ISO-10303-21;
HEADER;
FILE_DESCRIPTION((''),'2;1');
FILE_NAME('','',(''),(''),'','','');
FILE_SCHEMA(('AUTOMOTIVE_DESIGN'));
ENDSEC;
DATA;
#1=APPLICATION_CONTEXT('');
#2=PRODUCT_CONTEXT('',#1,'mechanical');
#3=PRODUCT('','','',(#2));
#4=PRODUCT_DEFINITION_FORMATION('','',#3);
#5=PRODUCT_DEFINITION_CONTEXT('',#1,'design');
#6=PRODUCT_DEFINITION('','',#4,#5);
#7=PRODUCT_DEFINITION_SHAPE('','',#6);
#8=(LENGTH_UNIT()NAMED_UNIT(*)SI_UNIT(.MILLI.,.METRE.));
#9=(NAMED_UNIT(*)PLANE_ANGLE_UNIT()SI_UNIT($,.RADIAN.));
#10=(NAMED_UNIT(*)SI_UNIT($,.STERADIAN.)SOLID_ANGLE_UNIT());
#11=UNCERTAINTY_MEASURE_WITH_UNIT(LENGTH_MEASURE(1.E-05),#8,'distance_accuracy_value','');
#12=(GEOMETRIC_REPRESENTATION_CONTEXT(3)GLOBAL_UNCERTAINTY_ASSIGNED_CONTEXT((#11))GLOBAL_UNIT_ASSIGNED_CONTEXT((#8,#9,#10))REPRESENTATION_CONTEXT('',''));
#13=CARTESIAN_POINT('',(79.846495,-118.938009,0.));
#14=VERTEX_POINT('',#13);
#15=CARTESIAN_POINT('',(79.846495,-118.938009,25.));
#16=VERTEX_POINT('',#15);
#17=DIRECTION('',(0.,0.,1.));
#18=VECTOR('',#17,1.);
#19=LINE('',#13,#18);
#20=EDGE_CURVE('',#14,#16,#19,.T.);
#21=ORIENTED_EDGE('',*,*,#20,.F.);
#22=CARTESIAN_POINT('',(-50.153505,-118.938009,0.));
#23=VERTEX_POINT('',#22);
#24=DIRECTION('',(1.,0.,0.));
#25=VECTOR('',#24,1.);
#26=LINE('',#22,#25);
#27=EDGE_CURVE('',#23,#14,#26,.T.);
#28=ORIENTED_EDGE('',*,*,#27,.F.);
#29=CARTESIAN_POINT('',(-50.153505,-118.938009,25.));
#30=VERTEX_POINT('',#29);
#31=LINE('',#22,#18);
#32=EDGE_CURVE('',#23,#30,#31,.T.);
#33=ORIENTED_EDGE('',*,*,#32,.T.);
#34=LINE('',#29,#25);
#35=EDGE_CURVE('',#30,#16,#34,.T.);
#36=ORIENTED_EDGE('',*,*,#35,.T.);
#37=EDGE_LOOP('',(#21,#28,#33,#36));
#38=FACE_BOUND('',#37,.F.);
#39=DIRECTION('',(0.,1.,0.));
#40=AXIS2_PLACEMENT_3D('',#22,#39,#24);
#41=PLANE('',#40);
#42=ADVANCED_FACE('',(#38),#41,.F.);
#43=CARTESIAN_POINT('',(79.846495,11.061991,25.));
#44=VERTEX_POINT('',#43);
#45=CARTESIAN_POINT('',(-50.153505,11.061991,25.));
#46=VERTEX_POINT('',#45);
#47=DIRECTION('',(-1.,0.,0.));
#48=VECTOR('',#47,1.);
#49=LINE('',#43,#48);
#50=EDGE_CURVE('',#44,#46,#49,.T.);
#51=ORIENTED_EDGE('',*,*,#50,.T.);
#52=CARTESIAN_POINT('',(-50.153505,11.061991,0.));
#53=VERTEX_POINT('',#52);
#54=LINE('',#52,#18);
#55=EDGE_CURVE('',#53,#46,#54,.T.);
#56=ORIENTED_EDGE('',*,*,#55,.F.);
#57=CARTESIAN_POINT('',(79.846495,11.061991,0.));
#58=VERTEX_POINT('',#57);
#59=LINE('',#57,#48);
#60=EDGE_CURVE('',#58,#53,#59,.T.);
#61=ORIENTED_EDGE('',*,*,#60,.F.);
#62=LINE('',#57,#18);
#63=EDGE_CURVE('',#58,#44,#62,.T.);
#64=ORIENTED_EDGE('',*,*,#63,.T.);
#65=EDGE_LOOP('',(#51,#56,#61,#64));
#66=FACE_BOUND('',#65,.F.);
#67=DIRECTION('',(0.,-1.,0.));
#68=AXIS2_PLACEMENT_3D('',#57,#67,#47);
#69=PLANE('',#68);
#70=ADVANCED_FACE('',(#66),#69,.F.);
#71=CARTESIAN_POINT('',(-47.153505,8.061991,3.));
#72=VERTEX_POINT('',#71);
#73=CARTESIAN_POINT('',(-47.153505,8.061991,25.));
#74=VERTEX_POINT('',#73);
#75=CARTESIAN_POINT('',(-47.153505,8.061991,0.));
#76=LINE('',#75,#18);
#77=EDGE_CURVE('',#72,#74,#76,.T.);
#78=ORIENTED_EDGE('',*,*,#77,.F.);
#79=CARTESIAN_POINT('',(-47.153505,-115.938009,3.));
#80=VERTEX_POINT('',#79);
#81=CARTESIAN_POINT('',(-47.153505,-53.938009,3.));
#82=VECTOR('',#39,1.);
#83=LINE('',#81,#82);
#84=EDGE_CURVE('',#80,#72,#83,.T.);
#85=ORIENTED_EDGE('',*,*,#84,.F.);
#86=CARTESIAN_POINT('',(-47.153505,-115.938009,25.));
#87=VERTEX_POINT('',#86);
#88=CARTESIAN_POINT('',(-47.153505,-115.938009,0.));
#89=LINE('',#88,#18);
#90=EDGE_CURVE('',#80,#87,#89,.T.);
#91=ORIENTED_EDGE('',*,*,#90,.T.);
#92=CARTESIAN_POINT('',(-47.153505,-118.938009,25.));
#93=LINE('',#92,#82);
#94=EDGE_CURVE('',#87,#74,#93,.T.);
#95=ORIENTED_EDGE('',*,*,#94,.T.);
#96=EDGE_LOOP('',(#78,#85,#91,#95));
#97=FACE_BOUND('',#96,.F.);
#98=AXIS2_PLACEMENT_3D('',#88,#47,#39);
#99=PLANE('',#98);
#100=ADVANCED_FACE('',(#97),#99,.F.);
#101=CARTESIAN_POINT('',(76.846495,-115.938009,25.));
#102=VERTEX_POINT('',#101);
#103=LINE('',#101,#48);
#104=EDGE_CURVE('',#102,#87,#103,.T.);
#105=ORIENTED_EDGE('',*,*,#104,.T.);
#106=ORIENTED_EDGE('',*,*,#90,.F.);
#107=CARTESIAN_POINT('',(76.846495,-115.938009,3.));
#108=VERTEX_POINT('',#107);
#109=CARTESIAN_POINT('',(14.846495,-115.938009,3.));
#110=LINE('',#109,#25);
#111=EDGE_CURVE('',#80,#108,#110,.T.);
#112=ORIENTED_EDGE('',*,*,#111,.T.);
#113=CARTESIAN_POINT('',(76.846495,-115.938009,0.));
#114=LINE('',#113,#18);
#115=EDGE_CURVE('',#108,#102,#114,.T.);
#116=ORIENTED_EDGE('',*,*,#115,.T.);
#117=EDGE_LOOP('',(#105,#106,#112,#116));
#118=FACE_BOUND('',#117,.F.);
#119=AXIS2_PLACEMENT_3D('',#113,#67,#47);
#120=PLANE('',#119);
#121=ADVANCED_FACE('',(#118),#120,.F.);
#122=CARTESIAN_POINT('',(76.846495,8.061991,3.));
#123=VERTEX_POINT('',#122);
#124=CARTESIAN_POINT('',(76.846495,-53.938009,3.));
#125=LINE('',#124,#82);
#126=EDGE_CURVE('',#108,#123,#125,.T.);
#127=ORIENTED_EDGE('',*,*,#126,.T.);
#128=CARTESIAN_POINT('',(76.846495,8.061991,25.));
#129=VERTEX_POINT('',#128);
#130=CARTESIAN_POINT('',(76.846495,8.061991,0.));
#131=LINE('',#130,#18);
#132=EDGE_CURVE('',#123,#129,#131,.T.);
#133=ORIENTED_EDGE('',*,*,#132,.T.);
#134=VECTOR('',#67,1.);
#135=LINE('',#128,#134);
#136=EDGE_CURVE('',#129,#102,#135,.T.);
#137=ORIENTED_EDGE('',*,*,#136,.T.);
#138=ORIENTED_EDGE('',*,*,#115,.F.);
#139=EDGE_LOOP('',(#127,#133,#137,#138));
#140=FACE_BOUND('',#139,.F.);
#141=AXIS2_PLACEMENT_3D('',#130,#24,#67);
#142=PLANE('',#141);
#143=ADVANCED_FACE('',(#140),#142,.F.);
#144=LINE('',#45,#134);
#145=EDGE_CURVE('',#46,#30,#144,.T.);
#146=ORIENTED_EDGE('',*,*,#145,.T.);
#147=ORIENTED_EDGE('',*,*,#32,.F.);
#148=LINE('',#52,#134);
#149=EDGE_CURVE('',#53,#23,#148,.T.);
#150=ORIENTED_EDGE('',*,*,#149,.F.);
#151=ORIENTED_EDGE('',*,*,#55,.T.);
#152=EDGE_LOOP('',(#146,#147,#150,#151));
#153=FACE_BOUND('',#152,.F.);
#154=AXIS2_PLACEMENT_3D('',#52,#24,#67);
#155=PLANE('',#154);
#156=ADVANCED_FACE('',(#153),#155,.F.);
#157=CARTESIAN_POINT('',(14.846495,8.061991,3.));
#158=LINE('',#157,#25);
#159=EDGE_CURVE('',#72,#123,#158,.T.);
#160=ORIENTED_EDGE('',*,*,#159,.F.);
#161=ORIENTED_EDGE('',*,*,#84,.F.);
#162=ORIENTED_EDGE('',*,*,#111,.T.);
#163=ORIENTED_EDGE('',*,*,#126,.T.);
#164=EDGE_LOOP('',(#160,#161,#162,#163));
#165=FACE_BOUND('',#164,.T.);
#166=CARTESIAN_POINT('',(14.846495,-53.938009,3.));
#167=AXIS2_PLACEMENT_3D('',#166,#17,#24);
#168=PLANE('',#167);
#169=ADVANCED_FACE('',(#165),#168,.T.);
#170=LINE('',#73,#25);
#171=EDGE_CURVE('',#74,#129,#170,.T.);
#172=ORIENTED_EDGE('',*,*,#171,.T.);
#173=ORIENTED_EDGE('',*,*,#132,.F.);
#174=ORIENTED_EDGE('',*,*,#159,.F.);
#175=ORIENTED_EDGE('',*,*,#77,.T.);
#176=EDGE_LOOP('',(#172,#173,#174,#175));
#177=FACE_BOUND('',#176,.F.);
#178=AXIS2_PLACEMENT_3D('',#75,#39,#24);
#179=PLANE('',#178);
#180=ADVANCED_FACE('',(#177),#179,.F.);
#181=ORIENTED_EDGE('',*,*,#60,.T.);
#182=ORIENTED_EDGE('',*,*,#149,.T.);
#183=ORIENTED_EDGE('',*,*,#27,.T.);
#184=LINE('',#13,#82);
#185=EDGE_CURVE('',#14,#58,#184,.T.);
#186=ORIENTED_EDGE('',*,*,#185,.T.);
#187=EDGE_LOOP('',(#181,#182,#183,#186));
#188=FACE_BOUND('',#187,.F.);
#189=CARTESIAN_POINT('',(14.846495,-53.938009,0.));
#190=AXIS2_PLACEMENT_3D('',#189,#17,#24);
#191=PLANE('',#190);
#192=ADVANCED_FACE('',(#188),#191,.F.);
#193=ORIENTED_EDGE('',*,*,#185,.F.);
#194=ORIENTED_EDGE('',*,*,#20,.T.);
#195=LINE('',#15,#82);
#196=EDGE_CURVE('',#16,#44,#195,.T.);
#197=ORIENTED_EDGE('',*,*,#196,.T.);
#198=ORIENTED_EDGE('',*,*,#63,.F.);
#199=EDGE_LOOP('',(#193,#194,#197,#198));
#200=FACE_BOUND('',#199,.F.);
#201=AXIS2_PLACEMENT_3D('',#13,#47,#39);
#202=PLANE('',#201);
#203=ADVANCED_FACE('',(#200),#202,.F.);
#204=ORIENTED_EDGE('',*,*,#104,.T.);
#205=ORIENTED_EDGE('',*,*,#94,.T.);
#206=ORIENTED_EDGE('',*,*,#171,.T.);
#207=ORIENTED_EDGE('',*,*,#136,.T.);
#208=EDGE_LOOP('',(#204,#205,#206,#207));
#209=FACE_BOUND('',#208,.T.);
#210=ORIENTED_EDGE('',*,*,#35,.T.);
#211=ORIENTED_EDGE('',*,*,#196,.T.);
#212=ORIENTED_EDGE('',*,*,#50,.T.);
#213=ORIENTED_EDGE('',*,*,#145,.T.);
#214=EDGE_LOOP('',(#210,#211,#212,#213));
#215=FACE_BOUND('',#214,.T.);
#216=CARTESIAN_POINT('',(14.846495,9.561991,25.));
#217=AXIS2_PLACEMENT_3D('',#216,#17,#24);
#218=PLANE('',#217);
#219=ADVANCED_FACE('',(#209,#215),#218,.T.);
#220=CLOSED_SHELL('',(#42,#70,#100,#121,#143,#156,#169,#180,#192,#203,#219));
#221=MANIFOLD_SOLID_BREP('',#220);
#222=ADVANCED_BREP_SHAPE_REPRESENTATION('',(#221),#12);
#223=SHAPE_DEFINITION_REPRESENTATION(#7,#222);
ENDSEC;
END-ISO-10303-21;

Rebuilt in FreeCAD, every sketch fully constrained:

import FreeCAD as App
import Part
import Sketcher
from FreeCAD import Vector
Q = App.Units.Quantity

doc = App.newDocument("Part")
body = doc.addObject("PartDesign::Body", "Body")

sketch1 = body.newObject("Sketcher::SketchObject", "Sketch")
sketch1.AttachmentSupport = (doc.getObject("XY_Plane"), [""])
sketch1.MapMode = "FlatFace"
sketch1.addGeometry([
    Part.LineSegment(Vector(-50, 11, 0), Vector(-50, -119, 0)),
    Part.LineSegment(Vector(-50, -119, 0), Vector(80, -119, 0)),
    Part.LineSegment(Vector(80, -119, 0), Vector(80, 11, 0)),
    Part.LineSegment(Vector(80, 11, 0), Vector(-50, 11, 0)),
    Part.LineSegment(Vector(-47, 8, 0), Vector(77, 8, 0)),
    Part.LineSegment(Vector(77, 8, 0), Vector(77, -116, 0)),
    Part.LineSegment(Vector(77, -116, 0), Vector(-47, -116, 0)),
    Part.LineSegment(Vector(-47, -116, 0), Vector(-47, 8, 0)),
], False)
sketch1.addConstraint([
    Sketcher.Constraint("Coincident", 0, 2, 1, 1),
    Sketcher.Constraint("Coincident", 1, 2, 2, 1),
    Sketcher.Constraint("Coincident", 2, 2, 3, 1),
    Sketcher.Constraint("Coincident", 3, 2, 0, 1),
    Sketcher.Constraint("Coincident", 4, 2, 5, 1),
    Sketcher.Constraint("Coincident", 5, 2, 6, 1),
    Sketcher.Constraint("Coincident", 6, 2, 7, 1),
    Sketcher.Constraint("Coincident", 7, 2, 4, 1),
    Sketcher.Constraint("Vertical", 0),
    Sketcher.Constraint("Horizontal", 1),
    Sketcher.Constraint("Vertical", 2),
    Sketcher.Constraint("Horizontal", 3),
    Sketcher.Constraint("Horizontal", 4),
    Sketcher.Constraint("Vertical", 5),
    Sketcher.Constraint("Horizontal", 6),
    Sketcher.Constraint("Vertical", 7),
    Sketcher.Constraint("Equal", 3, 0),
    Sketcher.Constraint("Equal", 6, 5),
    Sketcher.Constraint("DistanceX", 1, 1, 1, 2, Q("130 mm")),
    Sketcher.Constraint("DistanceX", 4, 1, 4, 2, Q("124 mm")),
    Sketcher.Constraint("DistanceX", 4, 2, 2, 2, Q("3 mm")),
    Sketcher.Constraint("DistanceY", 4, 2, 2, 2, Q("3 mm")),
    Sketcher.Constraint("DistanceY", 0, 2, -1, 1, Q("118.938009 mm")),
    Sketcher.Constraint("DistanceX", 0, 2, -1, 1, Q("50.153505 mm")),
])
pad1 = body.newObject("PartDesign::Pad", "Pad")
pad1.Profile = sketch1
pad1.Length = 25

sketch2 = body.newObject("Sketcher::SketchObject", "Sketch001")
sketch2.AttachmentSupport = (doc.getObject("XY_Plane"), [""])
sketch2.MapMode = "FlatFace"
sketch2.addGeometry([
    Part.LineSegment(Vector(-47, 8, 0), Vector(-47, -116, 0)),
    Part.LineSegment(Vector(-47, -116, 0), Vector(77, -116, 0)),
    Part.LineSegment(Vector(77, -116, 0), Vector(77, 8, 0)),
    Part.LineSegment(Vector(77, 8, 0), Vector(-47, 8, 0)),
], False)
sketch2.addConstraint([
    Sketcher.Constraint("Coincident", 0, 2, 1, 1),
    Sketcher.Constraint("Coincident", 1, 2, 2, 1),
    Sketcher.Constraint("Coincident", 2, 2, 3, 1),
    Sketcher.Constraint("Coincident", 3, 2, 0, 1),
    Sketcher.Constraint("Vertical", 0),
    Sketcher.Constraint("Horizontal", 1),
    Sketcher.Constraint("Vertical", 2),
    Sketcher.Constraint("Horizontal", 3),
    Sketcher.Constraint("Equal", 3, 0),
    Sketcher.Constraint("DistanceX", 1, 1, 1, 2, Q("124 mm")),
    Sketcher.Constraint("DistanceY", 0, 2, -1, 1, Q("115.938009 mm")),
    Sketcher.Constraint("DistanceX", 0, 2, -1, 1, Q("47.153505 mm")),
])
pad2 = body.newObject("PartDesign::Pad", "Pad001")
pad2.Profile = sketch2
pad2.Length = 3

doc.recompute()
